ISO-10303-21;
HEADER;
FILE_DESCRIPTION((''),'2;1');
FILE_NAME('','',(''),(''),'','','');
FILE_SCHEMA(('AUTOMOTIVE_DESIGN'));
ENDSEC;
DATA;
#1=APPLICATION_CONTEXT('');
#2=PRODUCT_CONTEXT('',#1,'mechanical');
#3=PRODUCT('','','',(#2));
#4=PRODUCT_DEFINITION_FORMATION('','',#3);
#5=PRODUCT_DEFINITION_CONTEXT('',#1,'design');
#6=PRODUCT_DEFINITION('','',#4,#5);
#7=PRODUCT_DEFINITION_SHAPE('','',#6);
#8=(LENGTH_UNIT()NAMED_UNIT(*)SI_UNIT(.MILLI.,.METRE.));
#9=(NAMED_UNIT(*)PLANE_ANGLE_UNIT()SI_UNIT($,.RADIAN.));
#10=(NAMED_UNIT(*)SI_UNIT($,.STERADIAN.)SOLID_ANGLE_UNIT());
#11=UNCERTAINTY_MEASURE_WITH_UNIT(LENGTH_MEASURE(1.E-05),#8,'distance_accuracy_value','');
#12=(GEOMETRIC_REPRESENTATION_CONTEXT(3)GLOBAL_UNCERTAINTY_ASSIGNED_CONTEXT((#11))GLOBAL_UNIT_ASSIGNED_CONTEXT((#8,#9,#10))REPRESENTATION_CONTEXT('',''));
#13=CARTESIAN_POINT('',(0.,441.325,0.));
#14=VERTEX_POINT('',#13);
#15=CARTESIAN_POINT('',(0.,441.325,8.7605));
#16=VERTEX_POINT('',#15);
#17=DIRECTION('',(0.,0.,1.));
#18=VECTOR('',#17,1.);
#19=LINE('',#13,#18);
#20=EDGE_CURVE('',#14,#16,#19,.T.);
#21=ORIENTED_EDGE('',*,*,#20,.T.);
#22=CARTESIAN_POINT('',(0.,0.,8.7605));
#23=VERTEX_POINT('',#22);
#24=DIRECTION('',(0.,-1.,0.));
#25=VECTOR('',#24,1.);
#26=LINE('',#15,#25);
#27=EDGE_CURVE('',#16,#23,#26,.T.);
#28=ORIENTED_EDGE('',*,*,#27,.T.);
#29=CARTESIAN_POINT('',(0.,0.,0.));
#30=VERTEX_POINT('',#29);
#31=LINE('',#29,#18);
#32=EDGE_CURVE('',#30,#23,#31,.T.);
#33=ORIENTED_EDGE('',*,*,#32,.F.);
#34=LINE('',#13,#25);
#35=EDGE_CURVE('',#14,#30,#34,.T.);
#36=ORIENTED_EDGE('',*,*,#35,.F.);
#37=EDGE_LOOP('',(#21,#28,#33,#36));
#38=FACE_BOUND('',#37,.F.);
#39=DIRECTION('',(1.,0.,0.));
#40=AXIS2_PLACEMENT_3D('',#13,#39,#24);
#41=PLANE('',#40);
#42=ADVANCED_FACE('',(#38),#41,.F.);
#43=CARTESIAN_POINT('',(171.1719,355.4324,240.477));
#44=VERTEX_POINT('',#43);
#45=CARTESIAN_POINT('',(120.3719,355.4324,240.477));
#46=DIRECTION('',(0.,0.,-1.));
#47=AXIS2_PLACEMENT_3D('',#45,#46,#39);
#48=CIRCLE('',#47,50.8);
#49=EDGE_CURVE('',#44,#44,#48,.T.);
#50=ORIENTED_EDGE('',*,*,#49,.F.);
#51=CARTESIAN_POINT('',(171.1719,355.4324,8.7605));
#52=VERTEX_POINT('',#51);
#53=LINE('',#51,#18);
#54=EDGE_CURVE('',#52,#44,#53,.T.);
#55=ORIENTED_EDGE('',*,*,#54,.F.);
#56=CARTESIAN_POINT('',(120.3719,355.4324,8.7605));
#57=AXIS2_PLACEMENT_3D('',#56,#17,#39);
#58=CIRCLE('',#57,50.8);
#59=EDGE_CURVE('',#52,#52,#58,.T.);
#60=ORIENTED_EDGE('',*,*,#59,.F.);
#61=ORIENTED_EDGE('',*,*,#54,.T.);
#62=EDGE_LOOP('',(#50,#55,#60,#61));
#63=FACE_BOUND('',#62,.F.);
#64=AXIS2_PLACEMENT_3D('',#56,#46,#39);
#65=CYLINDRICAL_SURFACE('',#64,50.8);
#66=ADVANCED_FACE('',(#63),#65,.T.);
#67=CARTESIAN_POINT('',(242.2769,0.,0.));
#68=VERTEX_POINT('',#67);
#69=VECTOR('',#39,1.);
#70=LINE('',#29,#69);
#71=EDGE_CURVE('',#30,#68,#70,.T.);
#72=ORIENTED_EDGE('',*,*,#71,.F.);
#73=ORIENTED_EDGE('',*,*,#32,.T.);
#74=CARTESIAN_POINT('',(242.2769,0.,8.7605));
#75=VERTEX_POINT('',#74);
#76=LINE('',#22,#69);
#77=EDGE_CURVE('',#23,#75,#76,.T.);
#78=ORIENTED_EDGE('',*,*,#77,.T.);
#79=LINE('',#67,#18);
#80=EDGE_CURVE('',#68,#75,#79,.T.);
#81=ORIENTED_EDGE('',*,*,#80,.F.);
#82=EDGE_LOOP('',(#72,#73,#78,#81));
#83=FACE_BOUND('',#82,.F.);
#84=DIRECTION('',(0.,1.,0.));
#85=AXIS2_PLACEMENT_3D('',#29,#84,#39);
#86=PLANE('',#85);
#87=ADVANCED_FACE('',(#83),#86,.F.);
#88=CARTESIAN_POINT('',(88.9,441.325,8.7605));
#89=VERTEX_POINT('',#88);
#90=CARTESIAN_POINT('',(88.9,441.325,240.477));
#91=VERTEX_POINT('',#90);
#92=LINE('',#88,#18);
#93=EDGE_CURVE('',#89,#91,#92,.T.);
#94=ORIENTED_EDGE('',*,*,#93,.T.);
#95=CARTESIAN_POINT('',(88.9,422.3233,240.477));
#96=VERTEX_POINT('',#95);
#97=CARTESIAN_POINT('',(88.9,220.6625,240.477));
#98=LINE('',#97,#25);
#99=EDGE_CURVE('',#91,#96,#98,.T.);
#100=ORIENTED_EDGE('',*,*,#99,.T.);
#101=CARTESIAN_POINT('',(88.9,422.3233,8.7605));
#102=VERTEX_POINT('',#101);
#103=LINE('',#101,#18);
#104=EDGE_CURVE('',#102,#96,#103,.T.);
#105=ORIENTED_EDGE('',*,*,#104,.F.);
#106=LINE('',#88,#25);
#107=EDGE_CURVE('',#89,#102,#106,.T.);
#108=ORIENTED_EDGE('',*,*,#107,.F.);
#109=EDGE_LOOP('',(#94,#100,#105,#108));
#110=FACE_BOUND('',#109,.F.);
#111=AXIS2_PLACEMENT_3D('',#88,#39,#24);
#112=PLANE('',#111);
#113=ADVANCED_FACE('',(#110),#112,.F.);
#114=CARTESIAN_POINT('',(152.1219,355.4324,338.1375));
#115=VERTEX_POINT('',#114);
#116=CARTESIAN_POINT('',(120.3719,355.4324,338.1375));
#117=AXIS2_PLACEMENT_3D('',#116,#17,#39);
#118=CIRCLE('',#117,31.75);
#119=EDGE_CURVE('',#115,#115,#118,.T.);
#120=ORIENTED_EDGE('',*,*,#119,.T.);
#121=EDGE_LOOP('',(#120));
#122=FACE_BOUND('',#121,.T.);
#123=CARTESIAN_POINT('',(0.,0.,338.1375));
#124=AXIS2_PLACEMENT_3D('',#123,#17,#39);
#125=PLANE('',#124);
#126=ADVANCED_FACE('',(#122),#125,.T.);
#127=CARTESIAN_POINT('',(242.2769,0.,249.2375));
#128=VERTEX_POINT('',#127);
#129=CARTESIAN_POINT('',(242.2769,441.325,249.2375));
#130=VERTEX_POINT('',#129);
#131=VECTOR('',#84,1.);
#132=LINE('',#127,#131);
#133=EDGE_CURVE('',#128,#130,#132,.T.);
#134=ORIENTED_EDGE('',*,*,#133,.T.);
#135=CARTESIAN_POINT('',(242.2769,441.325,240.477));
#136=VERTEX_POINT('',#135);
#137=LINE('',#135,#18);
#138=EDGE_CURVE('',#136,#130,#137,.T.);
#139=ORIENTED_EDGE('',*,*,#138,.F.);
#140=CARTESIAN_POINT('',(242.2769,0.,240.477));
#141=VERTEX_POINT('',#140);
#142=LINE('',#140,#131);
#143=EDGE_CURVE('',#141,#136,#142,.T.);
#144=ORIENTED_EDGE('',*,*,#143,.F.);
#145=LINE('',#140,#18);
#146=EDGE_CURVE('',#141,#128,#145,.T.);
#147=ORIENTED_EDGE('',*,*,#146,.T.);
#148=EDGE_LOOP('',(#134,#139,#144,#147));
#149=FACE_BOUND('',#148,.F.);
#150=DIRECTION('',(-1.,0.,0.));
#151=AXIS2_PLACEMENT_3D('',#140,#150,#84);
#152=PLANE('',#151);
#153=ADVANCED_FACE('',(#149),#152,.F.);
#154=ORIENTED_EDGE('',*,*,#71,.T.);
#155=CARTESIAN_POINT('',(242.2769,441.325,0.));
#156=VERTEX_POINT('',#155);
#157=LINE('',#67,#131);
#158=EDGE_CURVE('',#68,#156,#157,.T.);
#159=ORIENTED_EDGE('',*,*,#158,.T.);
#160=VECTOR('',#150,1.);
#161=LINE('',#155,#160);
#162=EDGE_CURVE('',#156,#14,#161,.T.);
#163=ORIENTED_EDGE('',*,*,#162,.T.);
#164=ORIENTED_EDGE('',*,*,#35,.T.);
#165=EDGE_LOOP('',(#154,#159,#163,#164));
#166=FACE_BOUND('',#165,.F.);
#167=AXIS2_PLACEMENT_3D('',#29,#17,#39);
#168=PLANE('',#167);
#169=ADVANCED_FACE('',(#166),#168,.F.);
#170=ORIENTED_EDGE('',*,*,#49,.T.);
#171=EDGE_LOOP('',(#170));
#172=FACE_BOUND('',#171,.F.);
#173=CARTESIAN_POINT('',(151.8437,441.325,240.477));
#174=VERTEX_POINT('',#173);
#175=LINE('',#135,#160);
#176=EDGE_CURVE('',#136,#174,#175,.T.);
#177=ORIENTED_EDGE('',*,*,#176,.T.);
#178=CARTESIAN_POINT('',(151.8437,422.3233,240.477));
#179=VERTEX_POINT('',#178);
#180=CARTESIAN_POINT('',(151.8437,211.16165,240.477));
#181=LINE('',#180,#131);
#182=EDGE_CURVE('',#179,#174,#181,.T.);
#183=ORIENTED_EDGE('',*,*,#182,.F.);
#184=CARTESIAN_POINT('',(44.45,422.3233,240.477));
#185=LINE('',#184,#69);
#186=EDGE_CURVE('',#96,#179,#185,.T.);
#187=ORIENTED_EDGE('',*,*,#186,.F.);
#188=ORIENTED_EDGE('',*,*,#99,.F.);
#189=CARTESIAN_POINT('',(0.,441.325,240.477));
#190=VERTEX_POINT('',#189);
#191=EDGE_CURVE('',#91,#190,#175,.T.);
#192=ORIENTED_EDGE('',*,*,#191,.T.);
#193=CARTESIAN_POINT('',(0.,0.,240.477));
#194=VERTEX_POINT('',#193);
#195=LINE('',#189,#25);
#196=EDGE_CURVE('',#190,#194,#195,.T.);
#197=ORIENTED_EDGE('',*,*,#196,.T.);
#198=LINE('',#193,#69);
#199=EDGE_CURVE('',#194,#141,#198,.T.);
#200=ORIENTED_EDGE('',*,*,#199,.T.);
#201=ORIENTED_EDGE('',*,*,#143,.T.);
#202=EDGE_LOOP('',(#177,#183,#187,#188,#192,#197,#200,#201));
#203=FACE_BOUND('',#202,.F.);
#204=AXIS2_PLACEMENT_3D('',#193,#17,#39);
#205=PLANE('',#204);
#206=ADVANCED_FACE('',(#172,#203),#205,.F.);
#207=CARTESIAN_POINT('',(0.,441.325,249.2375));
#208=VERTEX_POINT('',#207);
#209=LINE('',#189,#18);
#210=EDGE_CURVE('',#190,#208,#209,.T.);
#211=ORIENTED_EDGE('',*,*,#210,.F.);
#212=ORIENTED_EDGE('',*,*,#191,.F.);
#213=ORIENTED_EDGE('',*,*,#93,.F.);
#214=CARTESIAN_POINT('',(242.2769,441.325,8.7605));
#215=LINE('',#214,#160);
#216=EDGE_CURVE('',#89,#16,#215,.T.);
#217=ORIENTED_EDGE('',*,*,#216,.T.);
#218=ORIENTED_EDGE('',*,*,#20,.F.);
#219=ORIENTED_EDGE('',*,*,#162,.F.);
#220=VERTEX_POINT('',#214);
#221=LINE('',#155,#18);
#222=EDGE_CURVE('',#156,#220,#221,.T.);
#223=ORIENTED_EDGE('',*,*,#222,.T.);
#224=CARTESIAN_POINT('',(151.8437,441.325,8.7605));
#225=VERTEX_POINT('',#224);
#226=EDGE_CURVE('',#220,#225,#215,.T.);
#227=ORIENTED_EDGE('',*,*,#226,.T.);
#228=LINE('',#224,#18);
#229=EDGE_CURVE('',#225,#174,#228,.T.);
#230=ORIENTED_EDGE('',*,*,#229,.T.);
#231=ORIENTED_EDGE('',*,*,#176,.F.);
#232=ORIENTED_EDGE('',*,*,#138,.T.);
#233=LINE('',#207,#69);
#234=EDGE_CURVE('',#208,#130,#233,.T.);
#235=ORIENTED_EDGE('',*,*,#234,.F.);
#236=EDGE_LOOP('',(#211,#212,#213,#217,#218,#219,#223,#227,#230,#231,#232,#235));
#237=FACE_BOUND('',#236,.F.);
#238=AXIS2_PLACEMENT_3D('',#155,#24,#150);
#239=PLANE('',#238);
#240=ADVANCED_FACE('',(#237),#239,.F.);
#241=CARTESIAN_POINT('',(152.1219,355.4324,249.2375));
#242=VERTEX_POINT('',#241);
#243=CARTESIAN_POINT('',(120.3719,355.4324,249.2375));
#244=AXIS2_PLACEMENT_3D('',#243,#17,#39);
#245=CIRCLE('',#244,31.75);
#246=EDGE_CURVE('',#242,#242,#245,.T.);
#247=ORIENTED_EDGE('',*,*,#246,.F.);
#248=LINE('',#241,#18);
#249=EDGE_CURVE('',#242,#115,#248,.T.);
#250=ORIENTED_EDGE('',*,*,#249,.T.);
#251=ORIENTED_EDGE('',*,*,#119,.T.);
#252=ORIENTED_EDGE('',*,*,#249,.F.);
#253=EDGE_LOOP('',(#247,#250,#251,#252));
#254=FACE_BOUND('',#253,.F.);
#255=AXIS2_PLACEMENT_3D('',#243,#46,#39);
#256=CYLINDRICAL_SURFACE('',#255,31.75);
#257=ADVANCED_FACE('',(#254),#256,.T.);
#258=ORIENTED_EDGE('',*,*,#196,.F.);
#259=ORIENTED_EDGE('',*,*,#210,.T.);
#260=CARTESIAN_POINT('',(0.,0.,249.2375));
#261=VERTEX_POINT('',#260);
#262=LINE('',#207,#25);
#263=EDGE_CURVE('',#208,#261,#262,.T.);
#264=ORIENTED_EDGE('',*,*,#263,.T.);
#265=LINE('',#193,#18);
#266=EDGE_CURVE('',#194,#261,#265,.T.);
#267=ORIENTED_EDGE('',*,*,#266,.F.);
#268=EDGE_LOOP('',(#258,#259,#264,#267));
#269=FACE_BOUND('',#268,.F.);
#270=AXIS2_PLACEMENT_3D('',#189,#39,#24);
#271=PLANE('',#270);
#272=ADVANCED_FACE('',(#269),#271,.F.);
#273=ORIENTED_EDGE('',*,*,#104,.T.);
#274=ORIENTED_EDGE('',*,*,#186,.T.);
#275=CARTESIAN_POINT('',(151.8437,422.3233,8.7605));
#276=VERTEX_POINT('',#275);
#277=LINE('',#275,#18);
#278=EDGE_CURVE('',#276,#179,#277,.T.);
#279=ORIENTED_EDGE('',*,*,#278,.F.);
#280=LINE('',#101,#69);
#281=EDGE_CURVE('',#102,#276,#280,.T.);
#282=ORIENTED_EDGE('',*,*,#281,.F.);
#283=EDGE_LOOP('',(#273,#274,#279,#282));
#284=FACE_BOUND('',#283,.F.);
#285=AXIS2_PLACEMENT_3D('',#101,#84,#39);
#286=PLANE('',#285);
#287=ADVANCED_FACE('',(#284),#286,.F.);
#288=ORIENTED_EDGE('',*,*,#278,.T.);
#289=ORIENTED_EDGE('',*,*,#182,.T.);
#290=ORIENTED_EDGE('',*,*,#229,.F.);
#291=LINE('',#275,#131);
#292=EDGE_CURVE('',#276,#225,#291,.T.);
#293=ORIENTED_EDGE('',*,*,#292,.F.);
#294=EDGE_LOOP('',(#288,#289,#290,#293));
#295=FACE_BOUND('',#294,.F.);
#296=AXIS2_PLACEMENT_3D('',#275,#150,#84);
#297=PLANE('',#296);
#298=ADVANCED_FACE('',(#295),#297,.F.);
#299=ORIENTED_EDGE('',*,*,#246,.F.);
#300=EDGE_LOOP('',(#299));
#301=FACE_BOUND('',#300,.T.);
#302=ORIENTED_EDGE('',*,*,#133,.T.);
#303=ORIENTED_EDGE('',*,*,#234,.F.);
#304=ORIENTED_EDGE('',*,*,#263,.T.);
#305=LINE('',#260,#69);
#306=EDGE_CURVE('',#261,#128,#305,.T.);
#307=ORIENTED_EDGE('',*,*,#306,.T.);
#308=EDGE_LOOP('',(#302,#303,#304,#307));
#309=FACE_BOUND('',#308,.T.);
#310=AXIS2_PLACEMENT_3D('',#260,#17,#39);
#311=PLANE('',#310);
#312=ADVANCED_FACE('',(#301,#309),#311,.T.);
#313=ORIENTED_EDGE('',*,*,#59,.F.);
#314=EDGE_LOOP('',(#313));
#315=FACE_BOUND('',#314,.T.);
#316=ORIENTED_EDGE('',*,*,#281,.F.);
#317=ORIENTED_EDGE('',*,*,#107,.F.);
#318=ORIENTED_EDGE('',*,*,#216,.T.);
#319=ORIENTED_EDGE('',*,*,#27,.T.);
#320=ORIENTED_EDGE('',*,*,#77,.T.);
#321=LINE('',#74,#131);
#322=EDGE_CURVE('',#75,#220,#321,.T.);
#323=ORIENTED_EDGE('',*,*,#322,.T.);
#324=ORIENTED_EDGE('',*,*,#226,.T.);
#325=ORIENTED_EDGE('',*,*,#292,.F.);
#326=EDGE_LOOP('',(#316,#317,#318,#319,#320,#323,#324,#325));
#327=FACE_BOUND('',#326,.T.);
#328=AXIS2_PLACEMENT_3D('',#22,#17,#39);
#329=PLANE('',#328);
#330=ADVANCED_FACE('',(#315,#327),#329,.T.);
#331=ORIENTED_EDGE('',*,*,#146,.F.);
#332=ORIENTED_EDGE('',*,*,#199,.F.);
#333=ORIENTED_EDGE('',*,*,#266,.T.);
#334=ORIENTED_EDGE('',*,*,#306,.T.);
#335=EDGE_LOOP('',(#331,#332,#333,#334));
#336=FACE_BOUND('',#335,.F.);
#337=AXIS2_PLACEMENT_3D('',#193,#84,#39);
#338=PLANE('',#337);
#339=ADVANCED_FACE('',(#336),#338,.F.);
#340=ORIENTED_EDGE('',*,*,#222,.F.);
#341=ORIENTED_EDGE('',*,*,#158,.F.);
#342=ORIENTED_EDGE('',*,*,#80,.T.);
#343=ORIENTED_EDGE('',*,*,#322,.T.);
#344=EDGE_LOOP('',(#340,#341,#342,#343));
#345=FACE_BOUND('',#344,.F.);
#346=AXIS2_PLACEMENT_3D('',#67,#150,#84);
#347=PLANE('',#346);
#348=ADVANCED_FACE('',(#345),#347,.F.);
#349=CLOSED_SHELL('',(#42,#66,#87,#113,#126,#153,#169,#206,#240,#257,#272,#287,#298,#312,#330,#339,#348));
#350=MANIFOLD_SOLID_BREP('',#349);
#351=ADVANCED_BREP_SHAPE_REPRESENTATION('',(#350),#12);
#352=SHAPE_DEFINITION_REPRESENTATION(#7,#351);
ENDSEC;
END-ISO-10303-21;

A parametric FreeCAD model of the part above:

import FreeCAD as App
import Part
import Sketcher
Q = App.Units.Quantity

doc = App.newDocument("Part")
body = doc.addObject("PartDesign::Body", "Body")

sketch1 = doc.addObject("Sketcher::SketchObject", "Sketch")
body.addObject(sketch1)
sketch1.AttachmentSupport = (doc.XY_Plane, [""])
sketch1.MapMode = "FlatFace"
sketch1.addGeometry(Part.LineSegment(App.Vector(0, 441, 0), App.Vector(0, 0, 0)), False)
sketch1.addGeometry(Part.LineSegment(App.Vector(0, 0, 0), App.Vector(242, 0, 0)), False)
sketch1.addGeometry(Part.LineSegment(App.Vector(242, 0, 0), App.Vector(242, 441, 0)), False)
sketch1.addGeometry(Part.LineSegment(App.Vector(242, 441, 0), App.Vector(0, 441, 0)), False)
sketch1.addConstraint(Sketcher.Constraint("Coincident", 0, 2, 1, 1))
sketch1.addConstraint(Sketcher.Constraint("Coincident", 1, 2, 2, 1))
sketch1.addConstraint(Sketcher.Constraint("Coincident", 2, 2, 3, 1))
sketch1.addConstraint(Sketcher.Constraint("Coincident", 3, 2, 0, 1))
sketch1.addConstraint(Sketcher.Constraint("Vertical", 0))
sketch1.addConstraint(Sketcher.Constraint("Horizontal", 1))
sketch1.addConstraint(Sketcher.Constraint("Vertical", 2))
sketch1.addConstraint(Sketcher.Constraint("Horizontal", 3))
sketch1.addConstraint(Sketcher.Constraint("Coincident", 0, 2, -1, 1))
sketch1.addConstraint(Sketcher.Constraint("DistanceY", 0, 2, 0, 1, Q("17.375 in")))
sketch1.addConstraint(Sketcher.Constraint("DistanceX", 1, 1, 1, 2, 242.277))
pad1 = doc.addObject("PartDesign::Pad", "Pad")
body.addObject(pad1)
pad1.Profile = sketch1
pad1.Length = Q("0.3449016 in")

sketch2 = doc.addObject("Sketcher::SketchObject", "Sketch001")
body.addObject(sketch2)
sketch2.AttachmentSupport = (doc.XY_Plane, [""])
sketch2.MapMode = "FlatFace"
sketch2.AttachmentOffset = App.Placement(App.Vector(0, 0, 0.3449016 * 25.4), App.Rotation())
sketch2.addGeometry(Part.LineSegment(App.Vector(152, 422, 0), App.Vector(152, 441, 0)), False)
sketch2.addGeometry(Part.LineSegment(App.Vector(152, 441, 0), App.Vector(89, 441, 0)), False)
sketch2.addGeometry(Part.LineSegment(App.Vector(89, 441, 0), App.Vector(89, 422, 0)), False)
sketch2.addGeometry(Part.LineSegment(App.Vector(89, 422, 0), App.Vector(152, 422, 0)), False)
sketch2.addConstraint(Sketcher.Constraint("Coincident", 0, 2, 1, 1))
sketch2.addConstraint(Sketcher.Constraint("Coincident", 1, 2, 2, 1))
sketch2.addConstraint(Sketcher.Constraint("Coincident", 2, 2, 3, 1))
sketch2.addConstraint(Sketcher.Constraint("Coincident", 3, 2, 0, 1))
sketch2.addConstraint(Sketcher.Constraint("Vertical", 0))
sketch2.addConstraint(Sketcher.Constraint("Horizontal", 1))
sketch2.addConstraint(Sketcher.Constraint("Vertical", 2))
sketch2.addConstraint(Sketcher.Constraint("Horizontal", 3))
sketch2.addConstraint(Sketcher.Constraint("DistanceX", -1, 1, 1, 2, Q("3.5 in")))
sketch2.addConstraint(Sketcher.Constraint("DistanceX", 1, 2, 1, 1, Q("2.4781 in")))
sketch2.addConstraint(Sketcher.Constraint("DistanceY", 0, 1, 0, 2, Q("0.7481 in")))
sketch2.addConstraint(Sketcher.Constraint("DistanceY", -1, 1, 0, 2, Q("17.375 in")))
pad2 = doc.addObject("PartDesign::Pad", "Pad001")
body.addObject(pad2)
pad2.Profile = sketch2
pad2.Length = Q("9.1227008 in")

sketch3 = doc.addObject("Sketcher::SketchObject", "Sketch002")
body.addObject(sketch3)
sketch3.AttachmentSupport = (doc.XY_Plane, [""])
sketch3.MapMode = "FlatFace"
sketch3.AttachmentOffset = App.Placement(App.Vector(0, 0, 9.4675984 * 25.4), App.Rotation())
sketch3.addGeometry(Part.LineSegment(App.Vector(0, 441, 0), App.Vector(0, 0, 0)), False)
sketch3.addGeometry(Part.LineSegment(App.Vector(0, 0, 0), App.Vector(242, 0, 0)), False)
sketch3.addGeometry(Part.LineSegment(App.Vector(242, 0, 0), App.Vector(242, 441, 0)), False)
sketch3.addGeometry(Part.LineSegment(App.Vector(242, 441, 0), App.Vector(0, 441, 0)), False)
sketch3.addConstraint(Sketcher.Constraint("Coincident", 0, 2, 1, 1))
sketch3.addConstraint(Sketcher.Constraint("Coincident", 1, 2, 2, 1))
sketch3.addConstraint(Sketcher.Constraint("Coincident", 2, 2, 3, 1))
sketch3.addConstraint(Sketcher.Constraint("Coincident", 3, 2, 0, 1))
sketch3.addConstraint(Sketcher.Constraint("Vertical", 0))
sketch3.addConstraint(Sketcher.Constraint("Horizontal", 1))
sketch3.addConstraint(Sketcher.Constraint("Vertical", 2))
sketch3.addConstraint(Sketcher.Constraint("Horizontal", 3))
sketch3.addConstraint(Sketcher.Constraint("Coincident", 0, 2, -1, 1))
sketch3.addConstraint(Sketcher.Constraint("DistanceY", 0, 2, 0, 1, Q("17.375 in")))
sketch3.addConstraint(Sketcher.Constraint("DistanceX", 1, 1, 1, 2, 242.277))
pad3 = doc.addObject("PartDesign::Pad", "Pad002")
body.addObject(pad3)
pad3.Profile = sketch3
pad3.Length = Q("0.3449016 in")

sketch4 = doc.addObject("Sketcher::SketchObject", "Sketch003")
body.addObject(sketch4)
sketch4.AttachmentSupport = (doc.XY_Plane, [""])
sketch4.MapMode = "FlatFace"
sketch4.AttachmentOffset = App.Placement(App.Vector(0, 0, 0.3449016 * 25.4), App.Rotation())
sketch4.addGeometry(Part.Circle(App.Vector(120, 355, 0), App.Vector(0, 0, 1), 51), False)
sketch4.addConstraint(Sketcher.Constraint("Diameter", 0, Q("4 in")))
sketch4.addConstraint(Sketcher.Constraint("DistanceY", -1, 1, 0, 3, Q("13.9934 in")))
sketch4.addConstraint(Sketcher.Constraint("DistanceX", -1, 1, 0, 3, 120.372))
pad4 = doc.addObject("PartDesign::Pad", "Pad003")
body.addObject(pad4)
pad4.Profile = sketch4
pad4.Length = Q("9.1227008 in")

sketch5 = doc.addObject("Sketcher::SketchObject", "Sketch004")
body.addObject(sketch5)
sketch5.AttachmentSupport = (doc.XY_Plane, [""])
sketch5.MapMode = "FlatFace"
sketch5.AttachmentOffset = App.Placement(App.Vector(0, 0, 9.8125 * 25.4), App.Rotation())
sketch5.addGeometry(Part.Circle(App.Vector(120, 355, 0), App.Vector(0, 0, 1), 32), False)
sketch5.addConstraint(Sketcher.Constraint("Diameter", 0, Q("2.5 in")))
sketch5.addConstraint(Sketcher.Constraint("DistanceY", -1, 1, 0, 3, Q("13.9934 in")))
sketch5.addConstraint(Sketcher.Constraint("DistanceX", -1, 1, 0, 3, 120.372))
pad5 = doc.addObject("PartDesign::Pad", "Pad004")
body.addObject(pad5)
pad5.Profile = sketch5
pad5.Length = Q("3.5 in")

doc.recompute()
